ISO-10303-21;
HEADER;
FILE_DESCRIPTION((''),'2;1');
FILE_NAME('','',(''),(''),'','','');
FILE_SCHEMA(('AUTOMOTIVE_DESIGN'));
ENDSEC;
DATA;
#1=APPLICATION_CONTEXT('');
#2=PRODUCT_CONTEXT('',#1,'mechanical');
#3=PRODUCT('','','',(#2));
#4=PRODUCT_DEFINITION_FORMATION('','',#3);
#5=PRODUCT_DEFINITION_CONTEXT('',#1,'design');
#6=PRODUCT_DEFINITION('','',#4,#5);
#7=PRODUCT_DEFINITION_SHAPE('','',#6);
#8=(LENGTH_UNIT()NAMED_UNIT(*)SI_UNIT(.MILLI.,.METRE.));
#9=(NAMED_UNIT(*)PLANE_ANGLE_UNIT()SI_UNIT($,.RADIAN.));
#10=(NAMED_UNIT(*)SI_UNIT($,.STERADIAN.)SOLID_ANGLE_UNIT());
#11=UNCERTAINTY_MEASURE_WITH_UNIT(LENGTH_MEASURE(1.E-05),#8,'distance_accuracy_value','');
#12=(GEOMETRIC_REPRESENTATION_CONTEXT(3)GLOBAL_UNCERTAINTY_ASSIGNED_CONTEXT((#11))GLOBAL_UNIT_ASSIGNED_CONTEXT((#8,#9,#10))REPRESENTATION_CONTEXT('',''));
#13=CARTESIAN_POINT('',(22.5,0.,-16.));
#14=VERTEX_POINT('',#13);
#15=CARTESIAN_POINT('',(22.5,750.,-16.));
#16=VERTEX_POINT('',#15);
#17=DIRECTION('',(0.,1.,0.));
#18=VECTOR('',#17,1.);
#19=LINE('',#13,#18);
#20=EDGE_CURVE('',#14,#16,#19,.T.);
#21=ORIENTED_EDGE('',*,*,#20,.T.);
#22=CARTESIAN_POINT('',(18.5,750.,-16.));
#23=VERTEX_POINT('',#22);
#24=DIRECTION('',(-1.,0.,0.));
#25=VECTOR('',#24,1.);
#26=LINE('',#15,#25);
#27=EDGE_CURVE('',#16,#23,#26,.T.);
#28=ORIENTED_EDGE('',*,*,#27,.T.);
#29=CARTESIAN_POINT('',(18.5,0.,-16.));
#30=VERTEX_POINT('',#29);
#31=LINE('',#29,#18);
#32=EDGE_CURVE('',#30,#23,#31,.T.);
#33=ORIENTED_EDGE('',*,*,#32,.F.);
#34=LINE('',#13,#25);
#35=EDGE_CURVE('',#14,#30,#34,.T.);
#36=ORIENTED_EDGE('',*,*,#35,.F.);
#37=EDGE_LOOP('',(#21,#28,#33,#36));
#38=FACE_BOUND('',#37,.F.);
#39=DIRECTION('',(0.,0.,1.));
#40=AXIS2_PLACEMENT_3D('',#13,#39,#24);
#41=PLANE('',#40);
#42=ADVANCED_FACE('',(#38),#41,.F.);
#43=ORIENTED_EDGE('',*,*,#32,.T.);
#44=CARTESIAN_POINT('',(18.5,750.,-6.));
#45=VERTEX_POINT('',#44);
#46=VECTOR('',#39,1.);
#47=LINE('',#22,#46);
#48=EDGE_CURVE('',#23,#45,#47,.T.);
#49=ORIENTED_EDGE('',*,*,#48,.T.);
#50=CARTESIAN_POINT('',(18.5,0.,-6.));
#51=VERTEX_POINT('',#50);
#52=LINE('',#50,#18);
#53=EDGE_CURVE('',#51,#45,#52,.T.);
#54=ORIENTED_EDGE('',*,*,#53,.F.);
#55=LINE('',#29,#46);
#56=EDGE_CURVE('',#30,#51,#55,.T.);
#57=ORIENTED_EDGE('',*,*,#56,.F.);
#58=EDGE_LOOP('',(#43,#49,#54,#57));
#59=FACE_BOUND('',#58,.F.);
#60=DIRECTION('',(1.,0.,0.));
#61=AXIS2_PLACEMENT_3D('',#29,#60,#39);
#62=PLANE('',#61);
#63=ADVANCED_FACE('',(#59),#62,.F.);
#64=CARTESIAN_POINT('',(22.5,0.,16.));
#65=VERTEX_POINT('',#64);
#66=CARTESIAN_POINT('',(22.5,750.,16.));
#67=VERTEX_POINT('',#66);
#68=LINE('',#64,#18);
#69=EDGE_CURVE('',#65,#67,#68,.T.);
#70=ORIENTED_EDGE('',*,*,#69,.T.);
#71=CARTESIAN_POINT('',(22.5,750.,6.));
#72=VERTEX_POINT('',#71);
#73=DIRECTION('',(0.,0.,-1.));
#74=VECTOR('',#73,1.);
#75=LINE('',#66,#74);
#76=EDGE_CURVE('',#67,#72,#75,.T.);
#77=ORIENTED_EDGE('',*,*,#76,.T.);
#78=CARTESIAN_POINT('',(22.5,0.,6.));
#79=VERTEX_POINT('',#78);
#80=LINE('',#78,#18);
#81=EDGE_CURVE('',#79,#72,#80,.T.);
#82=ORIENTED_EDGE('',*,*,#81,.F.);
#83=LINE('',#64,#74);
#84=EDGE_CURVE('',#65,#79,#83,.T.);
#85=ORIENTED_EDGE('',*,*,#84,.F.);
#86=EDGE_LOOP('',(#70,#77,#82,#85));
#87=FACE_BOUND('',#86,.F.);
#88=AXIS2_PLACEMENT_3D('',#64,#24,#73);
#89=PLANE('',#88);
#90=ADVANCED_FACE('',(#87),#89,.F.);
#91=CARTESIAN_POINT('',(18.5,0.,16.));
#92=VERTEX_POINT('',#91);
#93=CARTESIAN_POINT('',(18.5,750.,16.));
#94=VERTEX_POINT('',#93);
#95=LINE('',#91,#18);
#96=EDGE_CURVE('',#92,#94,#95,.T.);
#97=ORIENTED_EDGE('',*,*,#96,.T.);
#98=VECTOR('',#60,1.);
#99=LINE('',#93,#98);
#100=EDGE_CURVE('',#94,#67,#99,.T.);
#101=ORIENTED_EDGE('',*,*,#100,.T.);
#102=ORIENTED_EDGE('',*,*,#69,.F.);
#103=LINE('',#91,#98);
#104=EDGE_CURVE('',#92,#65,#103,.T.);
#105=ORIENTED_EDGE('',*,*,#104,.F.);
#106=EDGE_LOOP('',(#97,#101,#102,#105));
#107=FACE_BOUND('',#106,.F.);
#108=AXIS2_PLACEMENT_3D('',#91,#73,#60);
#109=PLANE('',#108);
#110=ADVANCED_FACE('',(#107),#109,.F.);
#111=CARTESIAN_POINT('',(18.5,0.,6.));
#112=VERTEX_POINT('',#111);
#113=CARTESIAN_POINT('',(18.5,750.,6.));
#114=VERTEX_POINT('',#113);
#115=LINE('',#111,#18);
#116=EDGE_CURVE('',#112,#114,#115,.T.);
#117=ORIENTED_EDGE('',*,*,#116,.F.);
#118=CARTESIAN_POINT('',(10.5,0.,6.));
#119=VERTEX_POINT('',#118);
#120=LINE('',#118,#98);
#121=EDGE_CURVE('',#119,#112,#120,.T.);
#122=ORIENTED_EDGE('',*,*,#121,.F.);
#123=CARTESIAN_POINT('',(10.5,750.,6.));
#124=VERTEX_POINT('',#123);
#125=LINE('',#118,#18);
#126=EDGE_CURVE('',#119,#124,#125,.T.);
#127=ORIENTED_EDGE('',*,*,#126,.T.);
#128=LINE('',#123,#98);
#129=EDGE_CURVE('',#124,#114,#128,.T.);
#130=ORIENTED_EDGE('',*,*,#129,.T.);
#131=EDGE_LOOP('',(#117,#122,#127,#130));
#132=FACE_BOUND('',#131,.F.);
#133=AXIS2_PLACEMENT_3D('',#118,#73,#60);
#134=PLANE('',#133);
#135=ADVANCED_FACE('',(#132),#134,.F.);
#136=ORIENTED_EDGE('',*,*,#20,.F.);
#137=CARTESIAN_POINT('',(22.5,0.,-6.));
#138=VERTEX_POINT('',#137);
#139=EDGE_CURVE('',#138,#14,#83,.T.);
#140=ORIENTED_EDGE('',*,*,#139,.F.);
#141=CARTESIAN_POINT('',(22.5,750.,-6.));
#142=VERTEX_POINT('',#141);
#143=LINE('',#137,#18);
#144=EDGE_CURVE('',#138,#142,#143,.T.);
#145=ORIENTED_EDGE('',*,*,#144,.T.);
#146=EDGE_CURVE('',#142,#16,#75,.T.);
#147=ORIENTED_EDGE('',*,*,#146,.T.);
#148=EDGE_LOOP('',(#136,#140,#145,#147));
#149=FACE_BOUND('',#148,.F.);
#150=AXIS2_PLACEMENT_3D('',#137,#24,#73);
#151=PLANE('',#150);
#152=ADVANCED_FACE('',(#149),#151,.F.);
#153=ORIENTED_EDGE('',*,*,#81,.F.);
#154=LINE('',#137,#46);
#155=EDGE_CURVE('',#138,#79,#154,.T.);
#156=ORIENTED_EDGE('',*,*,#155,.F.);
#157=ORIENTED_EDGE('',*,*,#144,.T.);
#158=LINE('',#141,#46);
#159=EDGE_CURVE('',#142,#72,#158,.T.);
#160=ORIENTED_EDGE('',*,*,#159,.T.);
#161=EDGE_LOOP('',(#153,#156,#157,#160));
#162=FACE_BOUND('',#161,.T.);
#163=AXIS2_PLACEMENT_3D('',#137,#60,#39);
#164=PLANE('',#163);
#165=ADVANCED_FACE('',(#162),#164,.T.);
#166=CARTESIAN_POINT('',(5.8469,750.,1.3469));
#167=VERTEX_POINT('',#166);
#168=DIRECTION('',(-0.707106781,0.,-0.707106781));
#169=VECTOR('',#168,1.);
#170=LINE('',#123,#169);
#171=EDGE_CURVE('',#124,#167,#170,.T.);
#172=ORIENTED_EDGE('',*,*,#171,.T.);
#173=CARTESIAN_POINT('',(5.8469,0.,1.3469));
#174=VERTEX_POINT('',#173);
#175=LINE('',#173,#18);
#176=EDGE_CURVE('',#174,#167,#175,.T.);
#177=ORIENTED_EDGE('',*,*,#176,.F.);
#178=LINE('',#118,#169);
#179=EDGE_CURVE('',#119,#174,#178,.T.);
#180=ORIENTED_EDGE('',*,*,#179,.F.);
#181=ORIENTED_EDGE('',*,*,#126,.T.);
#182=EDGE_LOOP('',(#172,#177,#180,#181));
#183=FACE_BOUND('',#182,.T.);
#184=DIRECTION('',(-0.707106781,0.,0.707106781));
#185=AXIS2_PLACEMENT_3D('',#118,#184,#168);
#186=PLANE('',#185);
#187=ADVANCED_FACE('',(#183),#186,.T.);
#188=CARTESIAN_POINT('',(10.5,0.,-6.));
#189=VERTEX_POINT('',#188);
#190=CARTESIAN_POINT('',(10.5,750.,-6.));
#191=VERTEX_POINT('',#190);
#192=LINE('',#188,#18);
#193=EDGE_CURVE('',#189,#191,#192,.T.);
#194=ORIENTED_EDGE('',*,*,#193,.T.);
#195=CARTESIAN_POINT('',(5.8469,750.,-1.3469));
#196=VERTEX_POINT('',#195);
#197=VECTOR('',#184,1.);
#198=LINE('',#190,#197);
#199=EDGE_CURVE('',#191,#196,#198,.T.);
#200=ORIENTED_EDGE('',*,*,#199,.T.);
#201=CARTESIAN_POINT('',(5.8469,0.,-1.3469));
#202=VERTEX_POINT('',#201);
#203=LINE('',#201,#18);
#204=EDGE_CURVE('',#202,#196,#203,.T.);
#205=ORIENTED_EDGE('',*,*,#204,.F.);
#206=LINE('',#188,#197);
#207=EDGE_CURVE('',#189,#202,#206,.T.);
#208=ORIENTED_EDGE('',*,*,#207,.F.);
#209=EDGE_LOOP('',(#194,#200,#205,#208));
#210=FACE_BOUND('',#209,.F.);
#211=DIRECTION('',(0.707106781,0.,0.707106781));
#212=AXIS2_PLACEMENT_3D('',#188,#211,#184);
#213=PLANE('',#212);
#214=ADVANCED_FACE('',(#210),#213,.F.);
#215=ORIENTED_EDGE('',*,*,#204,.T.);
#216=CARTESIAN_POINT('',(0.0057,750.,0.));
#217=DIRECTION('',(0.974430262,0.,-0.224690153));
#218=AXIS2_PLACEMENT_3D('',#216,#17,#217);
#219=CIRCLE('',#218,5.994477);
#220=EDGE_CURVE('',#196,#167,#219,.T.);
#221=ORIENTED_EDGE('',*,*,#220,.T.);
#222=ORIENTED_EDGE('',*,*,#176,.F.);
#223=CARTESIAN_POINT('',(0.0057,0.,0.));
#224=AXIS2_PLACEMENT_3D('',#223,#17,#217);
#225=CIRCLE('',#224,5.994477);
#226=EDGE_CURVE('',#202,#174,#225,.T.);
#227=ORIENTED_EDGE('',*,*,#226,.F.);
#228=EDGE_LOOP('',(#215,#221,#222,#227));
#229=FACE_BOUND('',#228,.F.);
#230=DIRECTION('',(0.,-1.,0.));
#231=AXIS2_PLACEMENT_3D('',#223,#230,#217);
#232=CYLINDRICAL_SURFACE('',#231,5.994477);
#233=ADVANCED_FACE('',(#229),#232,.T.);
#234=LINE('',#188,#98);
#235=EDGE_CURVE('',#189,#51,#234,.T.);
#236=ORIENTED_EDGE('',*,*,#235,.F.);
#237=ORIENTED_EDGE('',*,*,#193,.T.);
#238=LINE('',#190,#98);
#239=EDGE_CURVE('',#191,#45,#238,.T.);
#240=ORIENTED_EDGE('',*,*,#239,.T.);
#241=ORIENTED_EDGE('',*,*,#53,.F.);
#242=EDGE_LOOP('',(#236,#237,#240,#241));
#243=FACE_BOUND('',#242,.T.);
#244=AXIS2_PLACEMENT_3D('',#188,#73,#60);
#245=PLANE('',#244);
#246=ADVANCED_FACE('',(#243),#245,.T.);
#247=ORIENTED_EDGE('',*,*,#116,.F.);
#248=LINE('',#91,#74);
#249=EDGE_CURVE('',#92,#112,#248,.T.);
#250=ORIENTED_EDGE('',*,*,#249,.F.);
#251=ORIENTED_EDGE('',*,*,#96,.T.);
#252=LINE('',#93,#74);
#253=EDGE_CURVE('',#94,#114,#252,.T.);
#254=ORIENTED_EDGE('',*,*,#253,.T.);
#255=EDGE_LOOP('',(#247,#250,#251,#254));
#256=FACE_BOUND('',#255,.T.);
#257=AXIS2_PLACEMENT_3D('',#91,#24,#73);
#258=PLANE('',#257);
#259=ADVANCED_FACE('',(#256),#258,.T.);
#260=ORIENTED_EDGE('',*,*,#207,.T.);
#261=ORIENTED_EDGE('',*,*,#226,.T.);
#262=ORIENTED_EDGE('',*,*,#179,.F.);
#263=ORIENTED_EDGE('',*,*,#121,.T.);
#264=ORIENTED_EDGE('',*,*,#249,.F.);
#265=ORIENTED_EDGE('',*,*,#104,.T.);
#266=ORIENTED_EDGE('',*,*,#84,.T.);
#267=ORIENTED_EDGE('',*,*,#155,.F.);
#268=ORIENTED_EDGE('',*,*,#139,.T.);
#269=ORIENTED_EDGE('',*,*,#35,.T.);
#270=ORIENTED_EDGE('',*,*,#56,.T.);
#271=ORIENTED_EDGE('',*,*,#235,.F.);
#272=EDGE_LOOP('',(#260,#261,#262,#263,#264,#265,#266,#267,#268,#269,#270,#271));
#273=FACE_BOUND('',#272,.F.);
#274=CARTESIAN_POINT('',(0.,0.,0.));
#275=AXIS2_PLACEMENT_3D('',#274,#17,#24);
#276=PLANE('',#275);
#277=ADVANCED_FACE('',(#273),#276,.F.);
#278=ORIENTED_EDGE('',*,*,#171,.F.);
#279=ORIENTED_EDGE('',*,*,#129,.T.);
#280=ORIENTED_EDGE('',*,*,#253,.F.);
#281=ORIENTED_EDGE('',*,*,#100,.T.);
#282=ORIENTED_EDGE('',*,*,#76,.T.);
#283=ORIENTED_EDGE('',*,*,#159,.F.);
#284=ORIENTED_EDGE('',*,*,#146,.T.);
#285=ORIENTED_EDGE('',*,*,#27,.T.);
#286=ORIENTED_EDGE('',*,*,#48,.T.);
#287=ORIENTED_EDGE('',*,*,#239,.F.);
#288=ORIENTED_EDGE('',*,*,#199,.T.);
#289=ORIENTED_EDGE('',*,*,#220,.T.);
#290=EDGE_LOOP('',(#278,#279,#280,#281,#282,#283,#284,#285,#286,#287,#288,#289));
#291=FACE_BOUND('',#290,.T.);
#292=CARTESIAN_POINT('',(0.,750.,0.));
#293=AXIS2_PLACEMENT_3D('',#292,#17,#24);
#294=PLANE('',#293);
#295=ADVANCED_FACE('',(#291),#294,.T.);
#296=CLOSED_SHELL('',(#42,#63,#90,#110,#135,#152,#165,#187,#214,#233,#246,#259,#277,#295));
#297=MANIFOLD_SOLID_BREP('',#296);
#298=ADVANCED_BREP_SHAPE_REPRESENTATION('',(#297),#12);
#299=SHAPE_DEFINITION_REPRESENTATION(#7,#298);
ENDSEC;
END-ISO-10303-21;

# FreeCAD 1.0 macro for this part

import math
import FreeCAD as App
import Part
import Sketcher
from FreeCAD import Vector

doc = App.newDocument("Part")
params = doc.addObject("Spreadsheet::Sheet", "Params")
for row, (alias, value) in enumerate([
    ("sketch1_width", "4 mm"),
    ("sketch1_height", "32 mm"),
    ("pad1_length", "750 mm"),
], start=1):
    params.set(f"A{row}", alias)
    params.set(f"B{row}", "=" + value)
    params.setAlias(f"B{row}", alias)

body = doc.addObject("PartDesign::Body", "Body")

sketch1 = doc.addObject("Sketcher::SketchObject", "Sketch")
body.addObject(sketch1)
sketch1.AttachmentSupport = (doc.XZ_Plane, [""])
sketch1.MapMode = "FlatFace"
sketch1.addGeometry([
    Part.LineSegment(Vector(22.5, 16, 0), Vector(22.5, -16, 0)),
    Part.LineSegment(Vector(22.5, -16, 0), Vector(18.5, -16, 0)),
    Part.LineSegment(Vector(18.5, -16, 0), Vector(18.5, -6, 0)),
    Part.LineSegment(Vector(18.5, -6, 0), Vector(10.5, -6, 0)),
    Part.LineSegment(Vector(10.5, -6, 0), Vector(5.8, -1.3, 0)),
    Part.ArcOfCircle(Part.Circle(Vector(0, 0, 0), Vector(0, 0, 1), 6), math.radians(13), math.radians(347)),
    Part.LineSegment(Vector(5.8, 1.3, 0), Vector(10.5, 6, 0)),
    Part.LineSegment(Vector(10.5, 6, 0), Vector(18.5, 6, 0)),
    Part.LineSegment(Vector(18.5, 6, 0), Vector(18.5, 16, 0)),
    Part.LineSegment(Vector(18.5, 16, 0), Vector(22.5, 16, 0)),
], False)
sketch1.addConstraint([
    Sketcher.Constraint("Coincident", 0, 2, 1, 1),
    Sketcher.Constraint("Coincident", 1, 2, 2, 1),
    Sketcher.Constraint("Coincident", 2, 2, 3, 1),
    Sketcher.Constraint("Coincident", 3, 2, 4, 1),
    Sketcher.Constraint("Coincident", 4, 2, 5, 2),
    Sketcher.Constraint("Coincident", 5, 1, 6, 1),
    Sketcher.Constraint("Coincident", 6, 2, 7, 1),
    Sketcher.Constraint("Coincident", 7, 2, 8, 1),
    Sketcher.Constraint("Coincident", 8, 2, 9, 1),
    Sketcher.Constraint("Coincident", 9, 2, 0, 1),
    Sketcher.Constraint("Vertical", 0),
    Sketcher.Constraint("Horizontal", 1),
    Sketcher.Constraint("Vertical", 2),
    Sketcher.Constraint("Horizontal", 3),
    Sketcher.Constraint("Horizontal", 7),
    Sketcher.Constraint("Vertical", 8),
    Sketcher.Constraint("Horizontal", 9),
    Sketcher.Constraint("Symmetric", 4, 2, 5, 1, -1),
    Sketcher.Constraint("Symmetric", 3, 2, 6, 2, -1),
    Sketcher.Constraint("Symmetric", 1, 2, 8, 2, -1),
    Sketcher.Constraint("Perpendicular", 4, 6),
    Sketcher.Constraint("DistanceX", 1, 2, 1, 1, 4.0),
    Sketcher.Constraint("DistanceY", 0, 2, 0, 1, 32.0),
    Sketcher.Constraint("DistanceX", 3, 2, 0, 2, 12.0),
    Sketcher.Constraint("DistanceY", 3, 2, 6, 2, 12.0),
    Sketcher.Constraint("Radius", 5, 5.9945),
    Sketcher.Constraint("DistanceX", -1, 1, 0, 2, 22.5),
    Sketcher.Constraint("DistanceX", -1, 1, 4, 2, 5.847),
])
sketch1.setExpression("Constraints[21]", "Params.sketch1_width")
sketch1.setExpression("Constraints[22]", "Params.sketch1_height")
pad1 = doc.addObject("PartDesign::Pad", "Pad")
body.addObject(pad1)
pad1.Profile = sketch1
pad1.setExpression("Length", "Params.pad1_length")
pad1.Reversed = True

doc.recompute()
